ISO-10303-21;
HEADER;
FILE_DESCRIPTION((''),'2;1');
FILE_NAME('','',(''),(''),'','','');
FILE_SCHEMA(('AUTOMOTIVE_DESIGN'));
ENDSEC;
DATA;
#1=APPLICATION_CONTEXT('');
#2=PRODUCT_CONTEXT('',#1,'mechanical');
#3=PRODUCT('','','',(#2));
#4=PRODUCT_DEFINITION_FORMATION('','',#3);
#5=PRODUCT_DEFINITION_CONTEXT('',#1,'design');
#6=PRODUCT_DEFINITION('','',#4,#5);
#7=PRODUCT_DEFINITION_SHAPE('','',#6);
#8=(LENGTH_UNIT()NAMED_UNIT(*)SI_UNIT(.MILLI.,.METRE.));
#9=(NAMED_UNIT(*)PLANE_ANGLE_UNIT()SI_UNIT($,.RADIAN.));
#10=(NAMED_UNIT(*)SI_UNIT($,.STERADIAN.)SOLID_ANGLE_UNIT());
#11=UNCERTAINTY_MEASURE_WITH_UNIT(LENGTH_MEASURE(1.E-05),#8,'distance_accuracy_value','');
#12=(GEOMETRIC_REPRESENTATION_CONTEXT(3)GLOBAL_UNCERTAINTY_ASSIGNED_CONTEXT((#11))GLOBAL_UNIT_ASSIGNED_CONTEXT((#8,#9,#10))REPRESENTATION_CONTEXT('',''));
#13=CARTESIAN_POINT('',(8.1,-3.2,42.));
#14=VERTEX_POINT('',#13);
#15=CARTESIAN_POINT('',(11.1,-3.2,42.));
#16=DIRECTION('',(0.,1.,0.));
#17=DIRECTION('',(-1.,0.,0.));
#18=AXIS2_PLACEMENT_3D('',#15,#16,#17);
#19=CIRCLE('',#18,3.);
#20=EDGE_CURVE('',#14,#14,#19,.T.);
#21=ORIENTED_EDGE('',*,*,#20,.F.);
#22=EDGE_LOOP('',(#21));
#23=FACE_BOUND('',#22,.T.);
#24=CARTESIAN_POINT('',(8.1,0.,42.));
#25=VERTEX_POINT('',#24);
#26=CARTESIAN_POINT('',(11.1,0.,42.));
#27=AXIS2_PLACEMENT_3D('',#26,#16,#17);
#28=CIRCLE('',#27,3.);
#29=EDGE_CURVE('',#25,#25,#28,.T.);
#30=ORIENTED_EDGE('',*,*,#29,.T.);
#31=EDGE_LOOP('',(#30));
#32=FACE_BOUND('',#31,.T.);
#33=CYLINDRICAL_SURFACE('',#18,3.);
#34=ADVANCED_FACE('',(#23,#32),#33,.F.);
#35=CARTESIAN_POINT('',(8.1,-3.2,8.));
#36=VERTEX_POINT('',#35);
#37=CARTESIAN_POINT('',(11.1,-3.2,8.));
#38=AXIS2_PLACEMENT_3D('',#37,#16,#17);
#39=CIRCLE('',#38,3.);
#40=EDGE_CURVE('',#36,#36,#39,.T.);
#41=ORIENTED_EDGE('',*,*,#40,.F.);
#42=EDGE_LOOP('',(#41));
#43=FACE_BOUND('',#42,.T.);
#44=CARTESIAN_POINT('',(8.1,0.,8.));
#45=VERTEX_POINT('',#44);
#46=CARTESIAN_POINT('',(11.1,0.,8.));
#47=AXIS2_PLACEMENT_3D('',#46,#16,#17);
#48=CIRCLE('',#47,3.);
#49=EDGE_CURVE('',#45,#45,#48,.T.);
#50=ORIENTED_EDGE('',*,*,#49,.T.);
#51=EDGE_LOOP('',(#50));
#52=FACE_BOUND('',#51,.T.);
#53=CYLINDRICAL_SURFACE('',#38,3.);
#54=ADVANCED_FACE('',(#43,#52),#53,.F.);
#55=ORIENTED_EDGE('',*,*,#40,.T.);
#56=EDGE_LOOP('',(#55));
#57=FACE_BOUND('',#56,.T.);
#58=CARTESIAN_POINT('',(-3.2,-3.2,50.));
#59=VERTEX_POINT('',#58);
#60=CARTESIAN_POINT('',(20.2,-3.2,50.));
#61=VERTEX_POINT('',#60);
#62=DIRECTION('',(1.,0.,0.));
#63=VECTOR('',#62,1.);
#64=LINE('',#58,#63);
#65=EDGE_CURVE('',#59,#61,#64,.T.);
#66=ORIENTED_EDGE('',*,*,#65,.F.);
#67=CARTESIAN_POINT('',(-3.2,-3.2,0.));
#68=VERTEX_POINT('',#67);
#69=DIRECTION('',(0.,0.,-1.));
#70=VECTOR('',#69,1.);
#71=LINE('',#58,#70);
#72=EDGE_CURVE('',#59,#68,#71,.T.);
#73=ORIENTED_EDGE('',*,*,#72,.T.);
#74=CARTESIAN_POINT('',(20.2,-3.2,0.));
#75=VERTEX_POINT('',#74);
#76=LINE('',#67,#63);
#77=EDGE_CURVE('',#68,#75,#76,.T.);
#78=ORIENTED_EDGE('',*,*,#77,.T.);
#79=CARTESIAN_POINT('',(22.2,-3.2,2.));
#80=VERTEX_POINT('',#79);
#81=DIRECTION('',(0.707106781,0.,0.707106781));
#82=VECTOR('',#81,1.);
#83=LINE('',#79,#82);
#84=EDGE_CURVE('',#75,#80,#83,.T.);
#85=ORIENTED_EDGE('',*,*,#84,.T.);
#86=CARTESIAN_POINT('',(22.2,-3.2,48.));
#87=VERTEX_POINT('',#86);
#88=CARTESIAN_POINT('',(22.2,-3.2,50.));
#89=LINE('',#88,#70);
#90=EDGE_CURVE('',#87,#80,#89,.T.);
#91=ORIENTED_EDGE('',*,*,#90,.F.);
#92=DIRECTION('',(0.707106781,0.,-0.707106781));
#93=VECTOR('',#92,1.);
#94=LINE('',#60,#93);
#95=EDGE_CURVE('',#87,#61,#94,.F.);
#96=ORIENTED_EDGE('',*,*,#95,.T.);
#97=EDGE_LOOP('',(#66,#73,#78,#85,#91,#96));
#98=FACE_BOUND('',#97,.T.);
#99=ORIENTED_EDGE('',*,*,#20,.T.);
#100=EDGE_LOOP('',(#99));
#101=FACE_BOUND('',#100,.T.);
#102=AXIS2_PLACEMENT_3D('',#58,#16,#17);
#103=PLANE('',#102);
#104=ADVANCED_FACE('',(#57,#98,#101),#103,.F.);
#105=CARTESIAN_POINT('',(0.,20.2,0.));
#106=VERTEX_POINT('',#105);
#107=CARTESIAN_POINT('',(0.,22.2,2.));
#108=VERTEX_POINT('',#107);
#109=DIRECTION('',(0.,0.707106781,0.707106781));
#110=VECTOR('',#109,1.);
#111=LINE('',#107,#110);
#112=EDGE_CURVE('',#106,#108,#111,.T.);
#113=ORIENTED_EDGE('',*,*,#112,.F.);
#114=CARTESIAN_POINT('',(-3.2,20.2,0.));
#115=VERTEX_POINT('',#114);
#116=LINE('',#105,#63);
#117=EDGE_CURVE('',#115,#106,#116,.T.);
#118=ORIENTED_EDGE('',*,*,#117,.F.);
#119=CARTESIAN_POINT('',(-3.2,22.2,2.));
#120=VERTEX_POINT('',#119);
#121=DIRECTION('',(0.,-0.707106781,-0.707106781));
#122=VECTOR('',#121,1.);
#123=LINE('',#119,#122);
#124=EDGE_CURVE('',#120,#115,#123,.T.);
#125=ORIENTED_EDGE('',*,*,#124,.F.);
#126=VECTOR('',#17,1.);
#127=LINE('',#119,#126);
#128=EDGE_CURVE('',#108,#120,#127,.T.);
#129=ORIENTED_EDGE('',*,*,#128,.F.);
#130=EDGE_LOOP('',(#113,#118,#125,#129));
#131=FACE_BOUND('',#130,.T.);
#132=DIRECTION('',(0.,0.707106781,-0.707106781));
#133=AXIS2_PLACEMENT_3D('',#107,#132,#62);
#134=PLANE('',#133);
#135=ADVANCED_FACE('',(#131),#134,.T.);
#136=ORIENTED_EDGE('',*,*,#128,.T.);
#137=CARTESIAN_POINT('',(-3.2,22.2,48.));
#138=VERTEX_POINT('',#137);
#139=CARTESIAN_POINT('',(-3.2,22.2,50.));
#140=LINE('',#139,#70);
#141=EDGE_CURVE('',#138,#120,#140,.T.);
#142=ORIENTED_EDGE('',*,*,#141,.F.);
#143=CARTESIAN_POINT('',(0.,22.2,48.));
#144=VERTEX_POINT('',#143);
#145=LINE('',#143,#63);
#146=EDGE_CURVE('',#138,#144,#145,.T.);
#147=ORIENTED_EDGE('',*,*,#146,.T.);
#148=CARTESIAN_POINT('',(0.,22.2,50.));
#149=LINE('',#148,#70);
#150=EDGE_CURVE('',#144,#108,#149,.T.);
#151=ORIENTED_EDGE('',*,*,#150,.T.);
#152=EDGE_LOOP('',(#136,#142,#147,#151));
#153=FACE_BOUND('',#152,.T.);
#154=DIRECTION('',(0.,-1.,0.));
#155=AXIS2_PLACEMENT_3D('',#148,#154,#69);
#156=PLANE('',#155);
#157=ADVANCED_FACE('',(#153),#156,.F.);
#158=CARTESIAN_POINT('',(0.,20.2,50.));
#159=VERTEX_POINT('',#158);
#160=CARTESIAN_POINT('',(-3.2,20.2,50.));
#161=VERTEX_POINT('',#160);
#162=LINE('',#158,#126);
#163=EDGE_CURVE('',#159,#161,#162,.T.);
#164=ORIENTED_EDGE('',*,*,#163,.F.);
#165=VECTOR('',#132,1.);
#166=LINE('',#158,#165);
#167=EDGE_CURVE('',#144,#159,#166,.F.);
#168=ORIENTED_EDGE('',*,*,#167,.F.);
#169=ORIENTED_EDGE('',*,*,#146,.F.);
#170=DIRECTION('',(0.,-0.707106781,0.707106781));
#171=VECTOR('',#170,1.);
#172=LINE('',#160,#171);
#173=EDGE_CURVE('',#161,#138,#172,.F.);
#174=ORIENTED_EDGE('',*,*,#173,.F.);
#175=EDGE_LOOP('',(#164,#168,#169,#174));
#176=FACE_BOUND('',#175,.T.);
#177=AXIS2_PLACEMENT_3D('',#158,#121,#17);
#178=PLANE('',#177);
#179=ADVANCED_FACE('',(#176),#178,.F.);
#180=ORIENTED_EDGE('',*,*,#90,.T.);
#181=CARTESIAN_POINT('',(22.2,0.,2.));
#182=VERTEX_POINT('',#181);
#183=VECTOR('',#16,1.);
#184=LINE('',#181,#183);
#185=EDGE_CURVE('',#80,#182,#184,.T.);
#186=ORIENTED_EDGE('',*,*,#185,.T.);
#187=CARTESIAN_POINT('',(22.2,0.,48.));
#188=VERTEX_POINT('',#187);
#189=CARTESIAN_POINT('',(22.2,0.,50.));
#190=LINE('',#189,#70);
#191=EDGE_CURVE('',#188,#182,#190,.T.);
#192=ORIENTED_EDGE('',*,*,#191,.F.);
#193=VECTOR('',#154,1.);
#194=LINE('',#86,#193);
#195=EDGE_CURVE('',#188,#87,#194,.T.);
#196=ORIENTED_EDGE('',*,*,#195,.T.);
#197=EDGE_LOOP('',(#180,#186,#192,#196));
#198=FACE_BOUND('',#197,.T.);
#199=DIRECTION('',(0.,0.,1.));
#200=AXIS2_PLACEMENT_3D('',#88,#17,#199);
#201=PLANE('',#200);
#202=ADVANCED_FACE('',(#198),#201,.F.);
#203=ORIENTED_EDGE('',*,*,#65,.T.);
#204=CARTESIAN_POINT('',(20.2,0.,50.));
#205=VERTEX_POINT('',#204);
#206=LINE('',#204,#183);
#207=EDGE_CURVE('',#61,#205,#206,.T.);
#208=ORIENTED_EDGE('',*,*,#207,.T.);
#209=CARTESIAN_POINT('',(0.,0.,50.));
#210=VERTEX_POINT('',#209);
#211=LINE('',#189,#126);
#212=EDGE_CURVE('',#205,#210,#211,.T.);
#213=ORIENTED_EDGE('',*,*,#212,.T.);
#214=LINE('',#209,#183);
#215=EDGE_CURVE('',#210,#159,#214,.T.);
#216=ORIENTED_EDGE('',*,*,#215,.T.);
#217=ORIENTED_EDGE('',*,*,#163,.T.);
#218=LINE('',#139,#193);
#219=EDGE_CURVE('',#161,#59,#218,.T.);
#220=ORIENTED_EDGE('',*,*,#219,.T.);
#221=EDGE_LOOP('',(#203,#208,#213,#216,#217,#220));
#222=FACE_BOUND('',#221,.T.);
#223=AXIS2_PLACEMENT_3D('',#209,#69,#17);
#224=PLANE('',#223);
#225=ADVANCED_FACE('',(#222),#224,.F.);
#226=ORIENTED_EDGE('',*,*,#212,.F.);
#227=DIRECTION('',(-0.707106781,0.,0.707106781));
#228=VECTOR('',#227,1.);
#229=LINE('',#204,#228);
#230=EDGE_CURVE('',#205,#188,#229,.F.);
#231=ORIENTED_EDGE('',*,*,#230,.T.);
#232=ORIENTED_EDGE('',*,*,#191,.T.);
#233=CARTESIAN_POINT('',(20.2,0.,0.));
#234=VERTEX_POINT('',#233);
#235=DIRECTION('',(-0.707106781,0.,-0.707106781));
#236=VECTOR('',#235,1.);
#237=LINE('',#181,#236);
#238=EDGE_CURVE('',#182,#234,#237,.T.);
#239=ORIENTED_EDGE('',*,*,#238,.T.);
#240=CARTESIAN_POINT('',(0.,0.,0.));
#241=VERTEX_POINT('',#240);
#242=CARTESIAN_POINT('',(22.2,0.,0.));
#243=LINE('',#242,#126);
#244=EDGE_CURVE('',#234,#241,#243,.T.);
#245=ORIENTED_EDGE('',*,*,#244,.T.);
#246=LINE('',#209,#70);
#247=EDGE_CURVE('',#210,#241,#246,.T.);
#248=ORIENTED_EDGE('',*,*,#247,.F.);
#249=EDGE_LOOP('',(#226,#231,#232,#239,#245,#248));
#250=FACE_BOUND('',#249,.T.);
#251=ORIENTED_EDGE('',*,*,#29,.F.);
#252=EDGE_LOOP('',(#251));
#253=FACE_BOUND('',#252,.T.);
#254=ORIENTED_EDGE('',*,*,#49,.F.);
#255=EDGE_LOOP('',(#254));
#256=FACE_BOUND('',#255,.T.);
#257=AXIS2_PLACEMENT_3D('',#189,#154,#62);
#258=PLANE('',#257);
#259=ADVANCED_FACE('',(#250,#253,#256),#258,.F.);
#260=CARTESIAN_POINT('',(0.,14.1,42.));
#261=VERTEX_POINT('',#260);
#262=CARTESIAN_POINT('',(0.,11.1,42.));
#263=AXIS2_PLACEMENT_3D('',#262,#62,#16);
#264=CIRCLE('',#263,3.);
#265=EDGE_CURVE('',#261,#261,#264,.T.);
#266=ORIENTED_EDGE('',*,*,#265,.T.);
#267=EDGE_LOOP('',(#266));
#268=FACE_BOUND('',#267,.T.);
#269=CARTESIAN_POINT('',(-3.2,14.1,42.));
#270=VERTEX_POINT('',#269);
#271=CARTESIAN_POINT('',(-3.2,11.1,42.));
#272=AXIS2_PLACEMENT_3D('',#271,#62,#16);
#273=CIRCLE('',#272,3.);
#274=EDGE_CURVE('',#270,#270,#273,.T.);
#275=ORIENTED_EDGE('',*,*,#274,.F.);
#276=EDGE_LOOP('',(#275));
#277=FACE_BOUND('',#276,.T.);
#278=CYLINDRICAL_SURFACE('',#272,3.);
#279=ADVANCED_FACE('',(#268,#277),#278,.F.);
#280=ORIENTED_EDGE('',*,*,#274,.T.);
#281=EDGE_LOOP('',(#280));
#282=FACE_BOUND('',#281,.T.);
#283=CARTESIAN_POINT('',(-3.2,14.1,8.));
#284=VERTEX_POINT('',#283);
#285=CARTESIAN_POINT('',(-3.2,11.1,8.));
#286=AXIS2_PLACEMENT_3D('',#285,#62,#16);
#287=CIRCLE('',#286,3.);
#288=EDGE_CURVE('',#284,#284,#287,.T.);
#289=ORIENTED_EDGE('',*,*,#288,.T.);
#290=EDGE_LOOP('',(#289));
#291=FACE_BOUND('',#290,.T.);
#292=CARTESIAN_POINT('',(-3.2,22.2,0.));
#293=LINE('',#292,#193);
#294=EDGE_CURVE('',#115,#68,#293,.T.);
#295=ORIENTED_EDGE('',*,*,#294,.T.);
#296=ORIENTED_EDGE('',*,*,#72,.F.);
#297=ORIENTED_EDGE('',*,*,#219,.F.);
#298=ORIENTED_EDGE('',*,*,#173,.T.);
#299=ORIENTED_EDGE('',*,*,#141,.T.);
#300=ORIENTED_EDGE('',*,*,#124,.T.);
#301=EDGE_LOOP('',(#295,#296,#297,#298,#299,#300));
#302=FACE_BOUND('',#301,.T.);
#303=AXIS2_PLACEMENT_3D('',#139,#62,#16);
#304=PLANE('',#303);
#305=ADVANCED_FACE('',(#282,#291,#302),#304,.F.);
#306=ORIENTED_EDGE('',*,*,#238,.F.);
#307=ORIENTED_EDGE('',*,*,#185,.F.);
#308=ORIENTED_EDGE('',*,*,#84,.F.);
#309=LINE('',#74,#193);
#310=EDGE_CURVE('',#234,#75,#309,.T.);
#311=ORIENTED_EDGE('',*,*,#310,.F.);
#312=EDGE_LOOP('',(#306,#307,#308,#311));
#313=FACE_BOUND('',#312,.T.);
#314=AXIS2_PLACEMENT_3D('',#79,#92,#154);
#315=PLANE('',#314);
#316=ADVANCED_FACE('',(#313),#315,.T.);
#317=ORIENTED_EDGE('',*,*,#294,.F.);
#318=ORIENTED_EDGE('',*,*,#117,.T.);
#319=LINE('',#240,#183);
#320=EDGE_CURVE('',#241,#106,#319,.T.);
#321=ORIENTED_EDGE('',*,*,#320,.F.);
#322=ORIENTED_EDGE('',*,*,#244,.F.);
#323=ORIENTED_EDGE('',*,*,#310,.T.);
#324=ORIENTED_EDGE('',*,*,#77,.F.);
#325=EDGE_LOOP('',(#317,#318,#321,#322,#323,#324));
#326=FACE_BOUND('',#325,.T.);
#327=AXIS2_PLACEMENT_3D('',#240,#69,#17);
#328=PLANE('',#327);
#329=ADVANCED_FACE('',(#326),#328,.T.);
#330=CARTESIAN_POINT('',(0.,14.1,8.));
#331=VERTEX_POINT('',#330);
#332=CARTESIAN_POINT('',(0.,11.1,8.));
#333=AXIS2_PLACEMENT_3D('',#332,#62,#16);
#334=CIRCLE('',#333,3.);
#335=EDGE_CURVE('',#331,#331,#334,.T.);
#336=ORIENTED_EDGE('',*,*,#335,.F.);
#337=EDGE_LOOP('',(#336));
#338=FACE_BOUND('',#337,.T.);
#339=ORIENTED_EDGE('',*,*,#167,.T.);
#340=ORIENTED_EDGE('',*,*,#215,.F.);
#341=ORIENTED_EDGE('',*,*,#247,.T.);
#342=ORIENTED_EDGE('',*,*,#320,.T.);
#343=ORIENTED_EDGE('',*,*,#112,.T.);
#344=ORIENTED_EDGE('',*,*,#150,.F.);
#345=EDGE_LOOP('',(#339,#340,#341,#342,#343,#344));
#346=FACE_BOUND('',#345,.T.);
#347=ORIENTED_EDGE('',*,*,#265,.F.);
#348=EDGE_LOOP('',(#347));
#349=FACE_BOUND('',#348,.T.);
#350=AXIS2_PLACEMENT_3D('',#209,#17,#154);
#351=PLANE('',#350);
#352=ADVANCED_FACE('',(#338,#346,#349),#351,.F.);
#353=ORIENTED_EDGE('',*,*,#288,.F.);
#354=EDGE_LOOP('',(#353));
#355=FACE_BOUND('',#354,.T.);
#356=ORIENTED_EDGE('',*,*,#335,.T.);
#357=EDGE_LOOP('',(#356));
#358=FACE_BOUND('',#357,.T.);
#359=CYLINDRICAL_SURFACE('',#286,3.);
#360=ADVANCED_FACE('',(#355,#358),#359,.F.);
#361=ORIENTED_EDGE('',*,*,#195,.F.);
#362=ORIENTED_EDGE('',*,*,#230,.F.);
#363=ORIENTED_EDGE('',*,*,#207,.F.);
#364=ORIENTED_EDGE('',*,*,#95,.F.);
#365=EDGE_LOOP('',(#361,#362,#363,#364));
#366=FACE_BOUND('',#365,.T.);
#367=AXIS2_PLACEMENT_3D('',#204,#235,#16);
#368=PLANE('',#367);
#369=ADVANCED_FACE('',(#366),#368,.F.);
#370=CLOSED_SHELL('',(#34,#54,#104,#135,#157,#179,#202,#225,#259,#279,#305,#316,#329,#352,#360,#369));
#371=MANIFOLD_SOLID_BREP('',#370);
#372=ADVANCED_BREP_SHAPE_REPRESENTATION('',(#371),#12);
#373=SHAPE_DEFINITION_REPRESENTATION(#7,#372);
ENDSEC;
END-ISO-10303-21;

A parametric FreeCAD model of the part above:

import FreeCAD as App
import Part
import Sketcher

V = App.Vector
Q = App.Units.Quantity


def edges_at(feature, points):
    """Names of the edges that pass closest to the given points."""
    edges = feature.Shape.Edges
    near = lambda p: min(range(len(edges)), key=lambda i: edges[i].distToShape(Part.Vertex(*p))[0])
    return sorted({f"Edge{near(p) + 1}" for p in points})


def add_polygon(sketch, points):
    """Adds a closed chain of lines whose ends are joined by coincident constraints."""
    first, n = sketch.GeometryCount, len(points)
    for a, b in zip(points, points[1:] + points[:1]):
        sketch.addGeometry(Part.LineSegment(App.Vector(*a, 0), App.Vector(*b, 0)), False)
    for i in range(n):
        sketch.addConstraint(Sketcher.Constraint("Coincident", first + i, 2, first + (i + 1) % n, 1))

doc = App.newDocument("Part")
body = doc.addObject("PartDesign::Body", "Body")

# Sketch on XY plane
sketch1 = body.newObject("Sketcher::SketchObject", "Sketch")
sketch1.AttachmentSupport = (doc.getObject("XY_Plane"), [""])
sketch1.MapMode = "FlatFace"
add_polygon(sketch1, [(0, 0), (0, 22.2), (-3.2, 22.2), (-3.2, -3.2), (22.2, -3.2), (22.2, 0)])  # lines 0-5
sketch1.addConstraint(Sketcher.Constraint("Vertical", 0))
sketch1.addConstraint(Sketcher.Constraint("Horizontal", 1))
sketch1.addConstraint(Sketcher.Constraint("Vertical", 2))
sketch1.addConstraint(Sketcher.Constraint("Horizontal", 3))
sketch1.addConstraint(Sketcher.Constraint("Vertical", 4))
sketch1.addConstraint(Sketcher.Constraint("Horizontal", 5))
sketch1.addConstraint(Sketcher.Constraint("Coincident", 5, 2, -1, 1))
sketch1.addConstraint(Sketcher.Constraint("Equal", 5, 0))
sketch1.addConstraint(Sketcher.Constraint("Equal", 3, 2))
sketch1.addConstraint(Sketcher.Constraint("DistanceX", 1, 2, 1, 1, Q("3.2 mm")))
sketch1.addConstraint(Sketcher.Constraint("DistanceX", 3, 1, 3, 2, Q("25.4 mm")))
pad1 = body.newObject("PartDesign::Pad", "Pad")
pad1.Profile = sketch1
pad1.Length = 50
doc.recompute()

chamfer = body.newObject("PartDesign::Chamfer", "Chamfer")
chamfer.Base = (pad1, edges_at(pad1, [
    (-1.6, 22.2, 50),
    (22.2, -1.6, 50),
    (22.2, -1.6, 0),
    (-1.6, 22.2, 0),
]))
chamfer.Size = 2

# Sketch on XZ plane
sketch2 = body.newObject("Sketcher::SketchObject", "Sketch001")
sketch2.AttachmentSupport = (doc.getObject("XZ_Plane"), [""])
sketch2.MapMode = "FlatFace"
sketch2.addGeometry(Part.Circle(V(11.1, 8, 0), V(0, 0, 1), 3), False)
sketch2.addGeometry(Part.Circle(V(11.1, 42, 0), V(0, 0, 1), 3), False)
sketch2.addConstraint(Sketcher.Constraint("Equal", 0, 1))
sketch2.addConstraint(Sketcher.Constraint("Vertical", 0, 3, 1, 3))
sketch2.addConstraint(Sketcher.Constraint("Diameter", 0, Q("6 mm")))
sketch2.addConstraint(Sketcher.Constraint("DistanceY", -1, 1, 0, 3, Q("8 mm")))
sketch2.addConstraint(Sketcher.Constraint("DistanceY", -1, 1, 1, 3, Q("42 mm")))
sketch2.addConstraint(Sketcher.Constraint("DistanceX", -1, 1, 0, 3, Q("11.1 mm")))
pocket1 = body.newObject("PartDesign::Pocket", "Pocket")
pocket1.Profile = sketch2
pocket1.Type = "ThroughAll"
pocket1.Reversed = True

# Sketch on YZ plane
sketch3 = body.newObject("Sketcher::SketchObject", "Sketch002")
sketch3.AttachmentSupport = (doc.getObject("YZ_Plane"), [""])
sketch3.MapMode = "FlatFace"
sketch3.addGeometry(Part.Circle(V(11.1, 42, 0), V(0, 0, 1), 3), False)
sketch3.addGeometry(Part.Circle(V(11.1, 8, 0), V(0, 0, 1), 3), False)
sketch3.addConstraint(Sketcher.Constraint("Equal", 0, 1))
sketch3.addConstraint(Sketcher.Constraint("Vertical", 0, 3, 1, 3))
sketch3.addConstraint(Sketcher.Constraint("Diameter", 0, Q("6 mm")))
sketch3.addConstraint(Sketcher.Constraint("DistanceY", -1, 1, 0, 3, Q("42 mm")))
sketch3.addConstraint(Sketcher.Constraint("DistanceY", -1, 1, 1, 3, Q("8 mm")))
sketch3.addConstraint(Sketcher.Constraint("DistanceX", -1, 1, 0, 3, Q("11.1 mm")))
pocket2 = body.newObject("PartDesign::Pocket", "Pocket001")
pocket2.Profile = sketch3
pocket2.Type = "ThroughAll"

doc.recompute()
